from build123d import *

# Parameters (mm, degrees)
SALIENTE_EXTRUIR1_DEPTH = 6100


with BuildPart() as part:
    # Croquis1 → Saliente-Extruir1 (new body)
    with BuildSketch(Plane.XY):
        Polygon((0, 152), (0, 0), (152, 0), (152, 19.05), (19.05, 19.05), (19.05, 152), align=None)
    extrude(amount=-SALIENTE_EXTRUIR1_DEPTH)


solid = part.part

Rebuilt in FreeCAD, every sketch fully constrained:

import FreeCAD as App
import Part
import Sketcher

V = App.Vector
Q = App.Units.Quantity

doc = App.newDocument("Part")
body = doc.addObject("PartDesign::Body", "Body")

# Sketch on XY plane
sketch1 = body.newObject("Sketcher::SketchObject", "Sketch")
sketch1.AttachmentSupport = (doc.getObject("XY_Plane"), [""])
sketch1.MapMode = "FlatFace"
sketch1.addGeometry([
    Part.LineSegment(V(0, 152, 0), V(0, 0, 0)),  # 0
    Part.LineSegment(V(0, 0, 0), V(152, 0, 0)),  # 1
    Part.LineSegment(V(152, 0, 0), V(152, 19, 0)),  # 2
    Part.LineSegment(V(152, 19, 0), V(19, 19, 0)),  # 3
    Part.LineSegment(V(19, 19, 0), V(19, 152, 0)),  # 4
    Part.LineSegment(V(19, 152, 0), V(0, 152, 0)),  # 5
], False)
sketch1.addConstraint([
    Sketcher.Constraint("Coincident", 0, 2, 1, 1),
    Sketcher.Constraint("Coincident", 1, 2, 2, 1),
    Sketcher.Constraint("Coincident", 2, 2, 3, 1),
    Sketcher.Constraint("Coincident", 3, 2, 4, 1),
    Sketcher.Constraint("Coincident", 4, 2, 5, 1),
    Sketcher.Constraint("Coincident", 5, 2, 0, 1),
    Sketcher.Constraint("Vertical", 0),
    Sketcher.Constraint("Horizontal", 1),
    Sketcher.Constraint("Vertical", 2),
    Sketcher.Constraint("Horizontal", 3),
    Sketcher.Constraint("Vertical", 4),
    Sketcher.Constraint("Horizontal", 5),
    Sketcher.Constraint("Coincident", 0, 2, -1, 1),
    Sketcher.Constraint("Equal", 1, 0),
    Sketcher.Constraint("Equal", 5, 2),
    Sketcher.Constraint("DistanceX", 1, 1, 1, 2, Q("152 mm")),
    Sketcher.Constraint("DistanceX", 3, 2, 3, 1, Q("132.95 mm")),
])
pad1 = body.newObject("PartDesign::Pad", "Pad")
pad1.Profile = sketch1
pad1.Length = 6100
pad1.Reversed = True

doc.recompute()
